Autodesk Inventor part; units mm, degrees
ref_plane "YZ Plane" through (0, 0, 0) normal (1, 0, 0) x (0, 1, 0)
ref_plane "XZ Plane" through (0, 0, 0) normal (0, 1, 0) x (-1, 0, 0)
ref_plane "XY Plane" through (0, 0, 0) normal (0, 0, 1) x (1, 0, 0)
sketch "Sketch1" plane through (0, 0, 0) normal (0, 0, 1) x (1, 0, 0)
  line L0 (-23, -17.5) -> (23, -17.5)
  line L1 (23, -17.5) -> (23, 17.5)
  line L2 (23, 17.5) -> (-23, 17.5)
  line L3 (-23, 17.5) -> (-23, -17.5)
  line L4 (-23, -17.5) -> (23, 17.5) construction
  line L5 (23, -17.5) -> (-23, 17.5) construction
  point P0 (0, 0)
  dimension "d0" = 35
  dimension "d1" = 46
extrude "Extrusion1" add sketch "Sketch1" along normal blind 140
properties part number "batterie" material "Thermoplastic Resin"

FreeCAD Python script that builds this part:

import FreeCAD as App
import Part
import Sketcher

V = App.Vector
Q = App.Units.Quantity


def add_polygon(sketch, points):
    """Adds a closed chain of lines whose ends are joined by coincident constraints."""
    first, n = sketch.GeometryCount, len(points)
    for a, b in zip(points, points[1:] + points[:1]):
        sketch.addGeometry(Part.LineSegment(App.Vector(*a, 0), App.Vector(*b, 0)), False)
    for i in range(n):
        sketch.addConstraint(Sketcher.Constraint("Coincident", first + i, 2, first + (i + 1) % n, 1))

doc = App.newDocument("Part")
body = doc.addObject("PartDesign::Body", "Body")

sketch1 = body.newObject("Sketcher::SketchObject", "Sketch")
sketch1.AttachmentSupport = (doc.getObject("XY_Plane"), [""])
sketch1.MapMode = "FlatFace"
add_polygon(sketch1, [(-23, 18), (-23, -18), (23, -18), (23, 18)])
sketch1.addConstraint([
    Sketcher.Constraint("Vertical", 0),
    Sketcher.Constraint("Horizontal", 1),
    Sketcher.Constraint("Vertical", 2),
    Sketcher.Constraint("Horizontal", 3),
    Sketcher.Constraint("Symmetric", 0, 2, 2, 2, -1, 1),
    Sketcher.Constraint("DistanceX", 1, 1, 1, 2, Q("46 mm")),
    Sketcher.Constraint("DistanceY", 0, 2, 0, 1, Q("35 mm")),
])
pad1 = body.newObject("PartDesign::Pad", "Pad")
pad1.Profile = sketch1
pad1.Length = 140

doc.recompute()
